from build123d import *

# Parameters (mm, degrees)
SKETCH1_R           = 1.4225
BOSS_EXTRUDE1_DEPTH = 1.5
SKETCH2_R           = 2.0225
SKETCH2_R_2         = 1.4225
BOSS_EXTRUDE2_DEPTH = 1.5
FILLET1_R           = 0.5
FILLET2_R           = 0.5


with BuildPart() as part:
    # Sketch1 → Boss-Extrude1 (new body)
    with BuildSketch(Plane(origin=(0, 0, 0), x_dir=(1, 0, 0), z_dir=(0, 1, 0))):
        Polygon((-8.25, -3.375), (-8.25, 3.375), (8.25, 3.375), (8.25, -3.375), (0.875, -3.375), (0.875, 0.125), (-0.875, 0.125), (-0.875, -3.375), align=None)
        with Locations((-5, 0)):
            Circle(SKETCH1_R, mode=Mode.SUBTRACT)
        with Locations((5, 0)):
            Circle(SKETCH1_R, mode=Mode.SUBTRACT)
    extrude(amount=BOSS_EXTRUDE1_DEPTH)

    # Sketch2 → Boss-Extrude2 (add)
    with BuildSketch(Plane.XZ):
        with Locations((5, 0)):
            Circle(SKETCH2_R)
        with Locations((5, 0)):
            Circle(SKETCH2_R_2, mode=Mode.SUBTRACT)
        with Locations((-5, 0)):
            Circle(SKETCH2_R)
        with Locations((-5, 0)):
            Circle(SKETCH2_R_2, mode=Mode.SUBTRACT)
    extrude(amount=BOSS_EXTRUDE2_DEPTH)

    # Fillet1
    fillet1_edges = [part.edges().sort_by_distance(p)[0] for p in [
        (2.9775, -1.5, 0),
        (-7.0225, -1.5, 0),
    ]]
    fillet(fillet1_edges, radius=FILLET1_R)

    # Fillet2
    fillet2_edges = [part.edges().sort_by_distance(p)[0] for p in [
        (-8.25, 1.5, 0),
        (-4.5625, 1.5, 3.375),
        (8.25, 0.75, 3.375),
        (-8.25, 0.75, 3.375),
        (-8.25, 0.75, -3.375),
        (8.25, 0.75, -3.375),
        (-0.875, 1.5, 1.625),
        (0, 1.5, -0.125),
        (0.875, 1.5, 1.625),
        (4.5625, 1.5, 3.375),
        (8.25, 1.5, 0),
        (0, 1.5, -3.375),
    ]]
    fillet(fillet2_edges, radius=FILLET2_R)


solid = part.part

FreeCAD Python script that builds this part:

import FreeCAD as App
import Part
import Sketcher
from FreeCAD import Vector


def edges_at(feature, points):
    """Names of the edges that pass closest to the given points."""
    edges = feature.Shape.Edges
    near = lambda p: min(range(len(edges)), key=lambda i: edges[i].distToShape(Part.Vertex(*p))[0])
    return sorted({f"Edge{near(p) + 1}" for p in points})

doc = App.newDocument("Part")
params = doc.addObject("Spreadsheet::Sheet", "Params")
for row, (alias, value) in enumerate([
    ("sketch1_width", "16.5 mm"),
    ("sketch1_height", "3.5 mm"),
    ("sketch1_width2", "1.75 mm"),
    ("sketch1_height2", "6.75 mm"),
    ("pad1_length", "1.5 mm"),
    ("pad2_length", "1.5 mm"),
    ("fillet_radius", "0.5 mm"),
    ("fillet2_radius", "0.5 mm"),
], start=1):
    params.set(f"A{row}", alias)
    params.set(f"B{row}", "=" + value)
    params.setAlias(f"B{row}", alias)

body = doc.addObject("PartDesign::Body", "Body")

sketch1 = doc.addObject("Sketcher::SketchObject", "Sketch")
body.addObject(sketch1)
sketch1.AttachmentSupport = (doc.XZ_Plane, [""])
sketch1.MapMode = "FlatFace"
sketch1.addGeometry([
    Part.LineSegment(Vector(-8.2, -3.4, 0), Vector(-8.2, 3.4, 0)),
    Part.LineSegment(Vector(-8.2, 3.4, 0), Vector(-0.9, 3.4, 0)),
    Part.LineSegment(Vector(-0.9, 3.4, 0), Vector(-0.9, -0.1, 0)),
    Part.LineSegment(Vector(-0.9, -0.1, 0), Vector(0.9, -0.1, 0)),
    Part.LineSegment(Vector(0.9, -0.1, 0), Vector(0.9, 3.4, 0)),
    Part.LineSegment(Vector(0.9, 3.4, 0), Vector(8.2, 3.4, 0)),
    Part.LineSegment(Vector(8.2, 3.4, 0), Vector(8.2, -3.4, 0)),
    Part.LineSegment(Vector(8.2, -3.4, 0), Vector(-8.2, -3.4, 0)),
    Part.Circle(Vector(5, 0, 0), Vector(0, 0, 1), 1.4),
    Part.Circle(Vector(-5, 0, 0), Vector(0, 0, 1), 1.4),
], False)
sketch1.addConstraint([
    Sketcher.Constraint("Coincident", 0, 2, 1, 1),
    Sketcher.Constraint("Coincident", 1, 2, 2, 1),
    Sketcher.Constraint("Coincident", 2, 2, 3, 1),
    Sketcher.Constraint("Coincident", 3, 2, 4, 1),
    Sketcher.Constraint("Coincident", 4, 2, 5, 1),
    Sketcher.Constraint("Coincident", 5, 2, 6, 1),
    Sketcher.Constraint("Coincident", 6, 2, 7, 1),
    Sketcher.Constraint("Coincident", 7, 2, 0, 1),
    Sketcher.Constraint("Vertical", 0),
    Sketcher.Constraint("Horizontal", 1),
    Sketcher.Constraint("Vertical", 2),
    Sketcher.Constraint("Horizontal", 3),
    Sketcher.Constraint("Vertical", 4),
    Sketcher.Constraint("Horizontal", 5),
    Sketcher.Constraint("Vertical", 6),
    Sketcher.Constraint("Horizontal", 7),
    Sketcher.Constraint("Equal", 8, 9),
    Sketcher.Constraint("Symmetric", 8, 3, 9, 3, -1, 1),
    Sketcher.Constraint("Symmetric", 0, 2, 6, 2, -1, 1),
    Sketcher.Constraint("Symmetric", 1, 2, 4, 2, -2),
    Sketcher.Constraint("PointOnObject", 8, 3, -1),
    Sketcher.Constraint("Diameter", 8, 2.845),
    Sketcher.Constraint("DistanceX", 7, 2, 7, 1, 16.5),
    Sketcher.Constraint("DistanceY", 2, 2, 2, 1, 3.5),
    Sketcher.Constraint("DistanceX", -1, 1, 8, 3, 5.0),
    Sketcher.Constraint("DistanceX", 3, 1, 3, 2, 1.75),
    Sketcher.Constraint("DistanceY", 0, 1, 0, 2, 6.75),
])
sketch1.setExpression("Constraints[22]", "Params.sketch1_width")
sketch1.setExpression("Constraints[23]", "Params.sketch1_height")
sketch1.setExpression("Constraints[25]", "Params.sketch1_width2")
sketch1.setExpression("Constraints[26]", "Params.sketch1_height2")
pad1 = doc.addObject("PartDesign::Pad", "Pad")
body.addObject(pad1)
pad1.Profile = sketch1
pad1.setExpression("Length", "Params.pad1_length")
pad1.Reversed = True

sketch2 = doc.addObject("Sketcher::SketchObject", "Sketch001")
body.addObject(sketch2)
sketch2.AttachmentSupport = (doc.XZ_Plane, [""])
sketch2.MapMode = "FlatFace"
sketch2.addGeometry([
    Part.Circle(Vector(5, 0, 0), Vector(0, 0, 1), 2),
    Part.Circle(Vector(5, 0, 0), Vector(0, 0, 1), 1.4),
    Part.Circle(Vector(-5, 0, 0), Vector(0, 0, 1), 2),
    Part.Circle(Vector(-5, 0, 0), Vector(0, 0, 1), 1.4),
], False)
sketch2.addConstraint([
    Sketcher.Constraint("Coincident", 1, 3, 0, 3),
    Sketcher.Constraint("Coincident", 3, 3, 2, 3),
    Sketcher.Constraint("Equal", 0, 2),
    Sketcher.Constraint("Equal", 1, 3),
    Sketcher.Constraint("Symmetric", 0, 3, 2, 3, -1, 1),
    Sketcher.Constraint("PointOnObject", 0, 3, -1),
    Sketcher.Constraint("Diameter", 0, 4.045),
    Sketcher.Constraint("Diameter", 1, 2.845),
    Sketcher.Constraint("DistanceX", -1, 1, 0, 3, 5.0),
])
pad2 = doc.addObject("PartDesign::Pad", "Pad001")
body.addObject(pad2)
pad2.Profile = sketch2
pad2.setExpression("Length", "Params.pad2_length")
doc.recompute()

fillet = doc.addObject("PartDesign::Fillet", "Fillet")
body.addObject(fillet)
fillet.Base = (pad2, edges_at(pad2, [(2.978, -1.5, 0), (-7.022, -1.5, 0)]))
fillet.setExpression("Radius", "Params.fillet_radius")
doc.recompute()

fillet2 = doc.addObject("PartDesign::Fillet", "Fillet001")
body.addObject(fillet2)
fillet2.Base = (fillet, edges_at(fillet, [
    (-8.25, 1.5, 0),
    (-4.562, 1.5, 3.375),
    (8.25, 0.75, 3.375),
    (-8.25, 0.75, 3.375),
    (-8.25, 0.75, -3.375),
    (8.25, 0.75, -3.375),
    (-0.875, 1.5, 1.625),
    (0, 1.5, -0.125),
    (0.875, 1.5, 1.625),
    (4.562, 1.5, 3.375),
    (8.25, 1.5, 0),
    (0, 1.5, -3.375),
]))
fillet2.setExpression("Radius", "Params.fillet2_radius")

doc.recompute()
